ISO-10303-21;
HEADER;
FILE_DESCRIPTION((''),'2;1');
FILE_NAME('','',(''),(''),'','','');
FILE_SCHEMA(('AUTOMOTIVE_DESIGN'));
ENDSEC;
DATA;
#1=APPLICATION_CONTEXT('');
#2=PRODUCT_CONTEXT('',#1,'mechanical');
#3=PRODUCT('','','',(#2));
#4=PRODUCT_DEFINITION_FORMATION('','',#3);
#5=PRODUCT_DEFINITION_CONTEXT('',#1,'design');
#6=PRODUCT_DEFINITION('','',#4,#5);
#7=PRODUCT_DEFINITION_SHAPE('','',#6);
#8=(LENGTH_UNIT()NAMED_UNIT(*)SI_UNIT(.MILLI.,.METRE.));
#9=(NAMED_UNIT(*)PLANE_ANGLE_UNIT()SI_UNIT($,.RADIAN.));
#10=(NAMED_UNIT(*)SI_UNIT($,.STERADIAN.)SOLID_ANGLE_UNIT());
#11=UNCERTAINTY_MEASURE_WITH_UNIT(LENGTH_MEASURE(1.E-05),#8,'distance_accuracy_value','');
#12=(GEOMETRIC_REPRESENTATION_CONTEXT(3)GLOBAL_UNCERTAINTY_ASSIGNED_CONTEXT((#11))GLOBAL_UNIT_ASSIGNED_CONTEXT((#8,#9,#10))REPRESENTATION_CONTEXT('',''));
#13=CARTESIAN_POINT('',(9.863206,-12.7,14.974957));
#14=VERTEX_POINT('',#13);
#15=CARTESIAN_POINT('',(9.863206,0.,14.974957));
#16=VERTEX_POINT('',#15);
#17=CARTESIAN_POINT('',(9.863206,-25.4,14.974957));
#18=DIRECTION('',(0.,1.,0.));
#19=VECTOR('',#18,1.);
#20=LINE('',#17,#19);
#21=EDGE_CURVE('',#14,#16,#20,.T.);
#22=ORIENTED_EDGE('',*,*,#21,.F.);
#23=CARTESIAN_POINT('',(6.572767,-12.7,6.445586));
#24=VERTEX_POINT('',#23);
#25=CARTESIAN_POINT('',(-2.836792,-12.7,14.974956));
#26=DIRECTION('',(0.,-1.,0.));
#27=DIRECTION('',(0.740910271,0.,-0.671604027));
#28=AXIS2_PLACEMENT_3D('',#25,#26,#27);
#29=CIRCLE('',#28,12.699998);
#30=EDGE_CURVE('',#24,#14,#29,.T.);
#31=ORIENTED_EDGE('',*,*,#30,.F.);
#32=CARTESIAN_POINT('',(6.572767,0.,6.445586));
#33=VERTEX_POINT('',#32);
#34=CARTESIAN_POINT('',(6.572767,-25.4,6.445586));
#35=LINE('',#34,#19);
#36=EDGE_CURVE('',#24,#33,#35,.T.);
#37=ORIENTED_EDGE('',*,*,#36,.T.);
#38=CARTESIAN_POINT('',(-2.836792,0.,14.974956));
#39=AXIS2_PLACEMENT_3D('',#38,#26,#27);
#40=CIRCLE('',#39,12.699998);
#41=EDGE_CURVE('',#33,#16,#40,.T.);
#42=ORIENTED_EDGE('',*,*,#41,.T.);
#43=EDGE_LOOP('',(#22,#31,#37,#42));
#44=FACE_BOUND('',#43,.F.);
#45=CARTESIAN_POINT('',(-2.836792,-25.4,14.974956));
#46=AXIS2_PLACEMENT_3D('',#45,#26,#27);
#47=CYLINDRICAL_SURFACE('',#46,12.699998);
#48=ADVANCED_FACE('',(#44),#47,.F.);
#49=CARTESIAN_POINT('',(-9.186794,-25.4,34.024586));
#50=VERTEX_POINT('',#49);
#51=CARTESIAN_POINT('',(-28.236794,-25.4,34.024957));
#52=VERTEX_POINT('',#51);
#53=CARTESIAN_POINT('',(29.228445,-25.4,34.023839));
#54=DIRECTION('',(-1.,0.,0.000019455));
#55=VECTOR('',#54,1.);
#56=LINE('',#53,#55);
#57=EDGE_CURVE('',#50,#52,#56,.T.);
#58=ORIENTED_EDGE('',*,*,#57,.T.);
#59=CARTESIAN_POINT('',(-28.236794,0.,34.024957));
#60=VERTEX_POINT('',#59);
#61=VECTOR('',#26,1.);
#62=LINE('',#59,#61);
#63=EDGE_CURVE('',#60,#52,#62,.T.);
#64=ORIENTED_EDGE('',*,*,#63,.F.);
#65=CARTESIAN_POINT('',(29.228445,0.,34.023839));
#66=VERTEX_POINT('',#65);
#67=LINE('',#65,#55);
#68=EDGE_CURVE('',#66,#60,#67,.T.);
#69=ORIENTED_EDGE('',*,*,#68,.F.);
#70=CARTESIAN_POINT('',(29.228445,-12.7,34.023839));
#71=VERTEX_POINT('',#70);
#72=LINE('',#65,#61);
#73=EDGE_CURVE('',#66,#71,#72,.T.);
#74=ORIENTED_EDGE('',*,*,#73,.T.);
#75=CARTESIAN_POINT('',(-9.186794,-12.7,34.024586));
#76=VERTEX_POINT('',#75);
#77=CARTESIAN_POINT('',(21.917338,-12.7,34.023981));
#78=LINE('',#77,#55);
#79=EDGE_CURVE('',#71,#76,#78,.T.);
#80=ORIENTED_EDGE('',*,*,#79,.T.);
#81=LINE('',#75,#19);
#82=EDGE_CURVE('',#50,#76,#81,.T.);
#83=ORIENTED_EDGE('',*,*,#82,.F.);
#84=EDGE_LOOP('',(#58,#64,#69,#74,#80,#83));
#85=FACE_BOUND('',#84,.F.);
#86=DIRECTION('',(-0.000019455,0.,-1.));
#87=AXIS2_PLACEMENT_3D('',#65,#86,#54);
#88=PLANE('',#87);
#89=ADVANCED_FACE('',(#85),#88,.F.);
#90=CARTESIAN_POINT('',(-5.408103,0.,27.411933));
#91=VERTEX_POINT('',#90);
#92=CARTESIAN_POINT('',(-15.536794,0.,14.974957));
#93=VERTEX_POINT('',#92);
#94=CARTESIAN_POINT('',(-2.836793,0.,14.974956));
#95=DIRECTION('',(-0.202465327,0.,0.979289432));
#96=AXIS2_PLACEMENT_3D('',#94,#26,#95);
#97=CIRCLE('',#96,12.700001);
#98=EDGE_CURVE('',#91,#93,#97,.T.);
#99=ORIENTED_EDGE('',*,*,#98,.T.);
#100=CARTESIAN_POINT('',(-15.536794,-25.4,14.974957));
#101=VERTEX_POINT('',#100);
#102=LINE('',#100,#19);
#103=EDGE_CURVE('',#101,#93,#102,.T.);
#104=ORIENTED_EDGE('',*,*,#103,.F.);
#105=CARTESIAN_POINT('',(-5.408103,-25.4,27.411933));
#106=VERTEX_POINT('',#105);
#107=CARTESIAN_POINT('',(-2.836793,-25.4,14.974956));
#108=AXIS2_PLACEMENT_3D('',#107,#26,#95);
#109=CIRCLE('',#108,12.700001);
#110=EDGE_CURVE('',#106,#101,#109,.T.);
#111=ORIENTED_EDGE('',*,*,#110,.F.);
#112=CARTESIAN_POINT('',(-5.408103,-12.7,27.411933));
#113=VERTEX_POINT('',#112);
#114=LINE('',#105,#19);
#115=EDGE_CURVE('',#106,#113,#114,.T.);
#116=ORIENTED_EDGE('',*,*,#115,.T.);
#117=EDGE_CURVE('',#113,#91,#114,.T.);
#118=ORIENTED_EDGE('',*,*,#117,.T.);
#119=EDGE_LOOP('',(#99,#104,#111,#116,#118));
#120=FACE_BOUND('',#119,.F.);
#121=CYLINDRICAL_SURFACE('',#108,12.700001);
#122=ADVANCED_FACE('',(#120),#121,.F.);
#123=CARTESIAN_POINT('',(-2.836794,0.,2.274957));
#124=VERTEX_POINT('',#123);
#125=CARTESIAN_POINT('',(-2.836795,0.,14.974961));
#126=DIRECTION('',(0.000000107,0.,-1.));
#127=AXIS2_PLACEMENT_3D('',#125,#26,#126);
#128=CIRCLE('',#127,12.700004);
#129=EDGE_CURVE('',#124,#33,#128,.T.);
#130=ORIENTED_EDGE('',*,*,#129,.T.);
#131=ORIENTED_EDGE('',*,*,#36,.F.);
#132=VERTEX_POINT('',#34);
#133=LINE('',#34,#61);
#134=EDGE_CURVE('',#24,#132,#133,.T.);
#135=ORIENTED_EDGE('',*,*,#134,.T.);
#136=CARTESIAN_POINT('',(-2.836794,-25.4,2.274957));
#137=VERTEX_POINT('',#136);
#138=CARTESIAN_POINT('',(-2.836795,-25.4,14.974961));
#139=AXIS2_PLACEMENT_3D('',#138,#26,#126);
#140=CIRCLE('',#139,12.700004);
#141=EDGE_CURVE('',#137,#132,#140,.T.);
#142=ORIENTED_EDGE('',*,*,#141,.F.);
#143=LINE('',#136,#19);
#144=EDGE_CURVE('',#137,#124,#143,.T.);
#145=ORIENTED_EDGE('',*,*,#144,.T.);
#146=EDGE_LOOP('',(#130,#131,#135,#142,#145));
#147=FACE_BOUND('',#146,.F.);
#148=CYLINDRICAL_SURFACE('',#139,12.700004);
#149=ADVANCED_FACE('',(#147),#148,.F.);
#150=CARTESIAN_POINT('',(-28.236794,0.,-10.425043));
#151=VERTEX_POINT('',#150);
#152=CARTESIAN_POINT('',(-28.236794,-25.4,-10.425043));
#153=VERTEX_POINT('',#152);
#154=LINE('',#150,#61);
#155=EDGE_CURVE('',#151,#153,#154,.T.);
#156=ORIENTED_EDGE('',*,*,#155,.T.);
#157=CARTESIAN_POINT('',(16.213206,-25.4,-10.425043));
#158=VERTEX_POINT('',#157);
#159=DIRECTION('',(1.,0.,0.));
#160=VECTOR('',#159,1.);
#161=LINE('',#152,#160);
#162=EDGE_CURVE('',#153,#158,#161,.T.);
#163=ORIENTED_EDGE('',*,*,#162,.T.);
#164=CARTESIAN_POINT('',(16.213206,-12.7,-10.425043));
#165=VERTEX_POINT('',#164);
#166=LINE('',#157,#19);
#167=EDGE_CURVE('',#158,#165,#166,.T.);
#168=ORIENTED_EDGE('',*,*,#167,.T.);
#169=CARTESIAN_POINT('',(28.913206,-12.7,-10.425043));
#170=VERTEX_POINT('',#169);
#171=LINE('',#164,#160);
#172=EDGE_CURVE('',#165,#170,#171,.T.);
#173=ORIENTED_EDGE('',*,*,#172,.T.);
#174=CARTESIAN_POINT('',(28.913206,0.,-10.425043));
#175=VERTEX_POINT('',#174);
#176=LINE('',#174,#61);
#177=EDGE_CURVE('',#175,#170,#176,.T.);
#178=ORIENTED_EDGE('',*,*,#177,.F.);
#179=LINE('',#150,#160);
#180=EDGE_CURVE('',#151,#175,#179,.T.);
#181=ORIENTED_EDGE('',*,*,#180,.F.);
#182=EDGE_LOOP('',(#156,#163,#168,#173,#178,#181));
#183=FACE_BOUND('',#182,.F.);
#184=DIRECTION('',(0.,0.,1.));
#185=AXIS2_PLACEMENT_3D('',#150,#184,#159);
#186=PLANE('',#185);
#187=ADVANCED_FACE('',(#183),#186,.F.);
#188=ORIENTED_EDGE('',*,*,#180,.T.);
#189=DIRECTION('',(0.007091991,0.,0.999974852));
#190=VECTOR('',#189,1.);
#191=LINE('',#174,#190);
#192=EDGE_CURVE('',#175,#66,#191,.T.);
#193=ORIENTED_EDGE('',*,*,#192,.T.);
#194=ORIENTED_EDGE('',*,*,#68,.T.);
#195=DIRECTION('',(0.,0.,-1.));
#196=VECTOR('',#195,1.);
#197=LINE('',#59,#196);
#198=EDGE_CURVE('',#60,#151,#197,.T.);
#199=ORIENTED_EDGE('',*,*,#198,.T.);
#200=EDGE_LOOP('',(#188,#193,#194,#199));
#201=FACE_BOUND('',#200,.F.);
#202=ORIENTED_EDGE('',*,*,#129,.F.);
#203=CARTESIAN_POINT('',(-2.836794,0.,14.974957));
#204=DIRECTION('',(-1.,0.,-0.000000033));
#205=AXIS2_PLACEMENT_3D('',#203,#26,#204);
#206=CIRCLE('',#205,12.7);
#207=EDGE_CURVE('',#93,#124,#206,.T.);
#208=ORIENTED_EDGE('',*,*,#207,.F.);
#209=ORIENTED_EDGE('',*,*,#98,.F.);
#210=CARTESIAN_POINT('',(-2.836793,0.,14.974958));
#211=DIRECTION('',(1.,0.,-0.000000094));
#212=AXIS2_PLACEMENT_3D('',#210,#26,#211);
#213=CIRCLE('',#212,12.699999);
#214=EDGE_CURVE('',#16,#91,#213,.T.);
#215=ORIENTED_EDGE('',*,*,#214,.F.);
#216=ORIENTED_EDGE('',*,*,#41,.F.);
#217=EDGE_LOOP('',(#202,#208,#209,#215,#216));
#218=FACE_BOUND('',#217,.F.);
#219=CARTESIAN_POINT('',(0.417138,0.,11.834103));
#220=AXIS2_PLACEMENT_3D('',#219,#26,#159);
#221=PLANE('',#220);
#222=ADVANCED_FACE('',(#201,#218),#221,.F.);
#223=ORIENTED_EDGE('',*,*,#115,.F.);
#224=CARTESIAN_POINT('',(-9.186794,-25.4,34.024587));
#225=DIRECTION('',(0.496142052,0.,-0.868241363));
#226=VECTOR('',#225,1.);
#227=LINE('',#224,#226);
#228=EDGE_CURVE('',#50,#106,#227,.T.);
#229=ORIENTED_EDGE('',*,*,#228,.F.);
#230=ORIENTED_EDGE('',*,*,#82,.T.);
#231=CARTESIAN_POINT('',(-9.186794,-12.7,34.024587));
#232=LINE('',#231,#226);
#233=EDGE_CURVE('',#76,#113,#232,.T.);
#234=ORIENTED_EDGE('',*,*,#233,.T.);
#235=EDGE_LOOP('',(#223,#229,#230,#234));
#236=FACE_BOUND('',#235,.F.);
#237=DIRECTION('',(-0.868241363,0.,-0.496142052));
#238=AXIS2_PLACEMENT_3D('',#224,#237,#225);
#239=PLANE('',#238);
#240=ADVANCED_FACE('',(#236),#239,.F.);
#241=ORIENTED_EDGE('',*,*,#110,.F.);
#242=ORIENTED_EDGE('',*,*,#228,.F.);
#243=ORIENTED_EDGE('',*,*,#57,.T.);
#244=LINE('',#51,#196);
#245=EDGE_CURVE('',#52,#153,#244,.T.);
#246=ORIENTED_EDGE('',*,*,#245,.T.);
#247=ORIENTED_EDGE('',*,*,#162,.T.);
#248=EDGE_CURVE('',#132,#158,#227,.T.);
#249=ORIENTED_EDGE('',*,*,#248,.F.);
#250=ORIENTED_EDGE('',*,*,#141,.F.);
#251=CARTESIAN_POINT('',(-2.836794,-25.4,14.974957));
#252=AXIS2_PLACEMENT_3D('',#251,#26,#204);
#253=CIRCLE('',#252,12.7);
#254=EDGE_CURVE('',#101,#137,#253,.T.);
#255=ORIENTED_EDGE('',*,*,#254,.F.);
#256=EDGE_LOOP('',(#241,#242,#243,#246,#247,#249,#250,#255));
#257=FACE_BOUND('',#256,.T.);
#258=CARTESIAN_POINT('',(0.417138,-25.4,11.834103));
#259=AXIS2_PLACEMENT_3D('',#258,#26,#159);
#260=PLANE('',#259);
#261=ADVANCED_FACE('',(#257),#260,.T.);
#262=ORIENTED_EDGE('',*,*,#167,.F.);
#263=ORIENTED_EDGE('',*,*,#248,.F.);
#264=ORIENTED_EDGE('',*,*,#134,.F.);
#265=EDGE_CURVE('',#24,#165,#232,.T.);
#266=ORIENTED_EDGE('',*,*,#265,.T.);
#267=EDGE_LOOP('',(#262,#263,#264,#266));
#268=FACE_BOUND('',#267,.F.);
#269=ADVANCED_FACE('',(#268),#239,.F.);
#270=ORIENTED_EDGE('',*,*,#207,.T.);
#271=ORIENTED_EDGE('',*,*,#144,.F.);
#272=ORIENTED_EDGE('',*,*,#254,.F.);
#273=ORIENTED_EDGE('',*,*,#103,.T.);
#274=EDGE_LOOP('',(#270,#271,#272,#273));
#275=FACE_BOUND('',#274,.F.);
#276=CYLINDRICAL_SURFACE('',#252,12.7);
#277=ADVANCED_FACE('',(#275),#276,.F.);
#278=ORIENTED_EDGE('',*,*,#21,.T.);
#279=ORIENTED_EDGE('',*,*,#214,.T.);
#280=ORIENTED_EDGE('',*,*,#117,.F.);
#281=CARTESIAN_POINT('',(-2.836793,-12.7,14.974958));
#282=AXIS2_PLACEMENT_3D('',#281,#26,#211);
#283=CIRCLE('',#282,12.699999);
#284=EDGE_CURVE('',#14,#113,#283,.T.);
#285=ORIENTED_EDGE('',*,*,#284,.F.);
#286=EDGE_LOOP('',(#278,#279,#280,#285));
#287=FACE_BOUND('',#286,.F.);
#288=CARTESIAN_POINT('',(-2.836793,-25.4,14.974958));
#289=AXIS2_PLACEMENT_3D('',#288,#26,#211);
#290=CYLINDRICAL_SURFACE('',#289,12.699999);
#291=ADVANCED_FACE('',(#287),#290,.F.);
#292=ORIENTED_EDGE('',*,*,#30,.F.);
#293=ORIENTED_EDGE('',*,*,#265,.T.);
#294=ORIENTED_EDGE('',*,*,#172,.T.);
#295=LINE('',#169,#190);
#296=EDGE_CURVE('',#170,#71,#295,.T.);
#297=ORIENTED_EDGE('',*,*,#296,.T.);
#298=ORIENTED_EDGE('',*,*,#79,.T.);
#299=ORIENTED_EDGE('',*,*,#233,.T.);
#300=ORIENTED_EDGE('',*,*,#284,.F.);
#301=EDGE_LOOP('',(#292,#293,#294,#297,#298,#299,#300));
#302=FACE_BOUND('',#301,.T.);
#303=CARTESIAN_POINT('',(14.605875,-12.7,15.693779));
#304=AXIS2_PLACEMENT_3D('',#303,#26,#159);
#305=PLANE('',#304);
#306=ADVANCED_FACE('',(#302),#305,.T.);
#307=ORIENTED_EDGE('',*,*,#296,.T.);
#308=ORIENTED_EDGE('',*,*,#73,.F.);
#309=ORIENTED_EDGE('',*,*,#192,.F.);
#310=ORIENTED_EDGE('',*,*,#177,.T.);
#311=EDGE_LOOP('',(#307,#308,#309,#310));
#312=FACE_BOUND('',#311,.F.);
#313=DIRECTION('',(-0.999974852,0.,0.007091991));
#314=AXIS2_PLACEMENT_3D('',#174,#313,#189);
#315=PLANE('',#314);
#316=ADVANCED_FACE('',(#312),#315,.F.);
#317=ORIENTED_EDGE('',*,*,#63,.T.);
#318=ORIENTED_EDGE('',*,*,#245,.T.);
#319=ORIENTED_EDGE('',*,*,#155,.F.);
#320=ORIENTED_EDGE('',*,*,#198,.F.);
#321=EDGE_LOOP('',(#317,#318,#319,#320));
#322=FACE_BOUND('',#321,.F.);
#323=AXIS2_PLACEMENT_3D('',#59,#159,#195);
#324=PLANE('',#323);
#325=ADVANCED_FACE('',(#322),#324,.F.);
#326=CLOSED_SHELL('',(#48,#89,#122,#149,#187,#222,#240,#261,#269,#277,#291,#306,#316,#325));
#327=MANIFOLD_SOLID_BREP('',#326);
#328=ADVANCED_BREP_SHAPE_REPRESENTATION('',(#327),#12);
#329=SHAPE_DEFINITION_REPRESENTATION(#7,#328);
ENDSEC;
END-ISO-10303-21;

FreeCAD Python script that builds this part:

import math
import FreeCAD as App
import Part
import Sketcher
Q = App.Units.Quantity


def add_polygon(sketch, points):
    """Adds a closed chain of lines whose ends are joined by coincident constraints."""
    first, n = sketch.GeometryCount, len(points)
    for a, b in zip(points, points[1:] + points[:1]):
        sketch.addGeometry(Part.LineSegment(App.Vector(*a, 0), App.Vector(*b, 0)), False)
    for i in range(n):
        sketch.addConstraint(Sketcher.Constraint("Coincident", first + i, 2, first + (i + 1) % n, 1))

doc = App.newDocument("Part")
params = doc.addObject("Spreadsheet::Sheet", "Params")
for row, (alias, value) in enumerate([
    ("sketch1_width", "2.25 in"),
    ("sketch1_height", "1.75 in"),
    ("sketch1_length", "1.75 in"),
    ("pad1_length", "1 in"),
    ("sketch2_width", "0.5 in"),
    ("sketch2_length", "1.75 in"),
    ("pocket1_length", "0.5 in"),
    ("sketch3_radius", "0.5 in"),
], start=1):
    params.set(f"A{row}", alias)
    params.set(f"B{row}", "=" + value)
    params.setAlias(f"B{row}", alias)

body = doc.addObject("PartDesign::Body", "Body")

# Sketch on XZ plane
sketch1 = body.newObject("Sketcher::SketchObject", "Sketch")
sketch1.AttachmentSupport = (doc.getObject("XZ_Plane"), [""])
sketch1.MapMode = "FlatFace"
add_polygon(sketch1, [(29, 34), (-28, 34), (-28, -10), (29, -10)])  # lines 0-3
sketch1.addConstraint(Sketcher.Constraint("Vertical", 1))
sketch1.addConstraint(Sketcher.Constraint("Horizontal", 2))
sketch1.addConstraint(Sketcher.Constraint("DistanceX", 2, 1, 2, 2, Q("2.25 in")))
sketch1.addConstraint(Sketcher.Constraint("DistanceY", 1, 2, 1, 1, Q("1.75 in")))
sketch1.addConstraint(Sketcher.Constraint("Distance", 3, Q("1.75 in")))
sketch1.addConstraint(Sketcher.Constraint("Distance", 0, 57.465239))
sketch1.addConstraint(Sketcher.Constraint("DistanceY", -1, 1, 3, 2, 34.023839))
sketch1.addConstraint(Sketcher.Constraint("DistanceX", 0, 2, -1, 1, 28.236794))
sketch1.setExpression("Constraints[6]", "Params.sketch1_width")
sketch1.setExpression("Constraints[7]", "Params.sketch1_height")
sketch1.setExpression("Constraints[8]", "Params.sketch1_length")
pad1 = body.newObject("PartDesign::Pad", "Pad")
pad1.Profile = sketch1
pad1.setExpression("Length", "Params.pad1_length")

# Sketch on XZ plane
sketch2 = body.newObject("Sketcher::SketchObject", "Sketch001")
sketch2.AttachmentSupport = (doc.getObject("XZ_Plane"), [""])
sketch2.MapMode = "FlatFace"
sketch2.AttachmentOffset = App.Placement(App.Vector(0, 0, 1 * 25.4), App.Rotation())
add_polygon(sketch2, [(29, 34), (-9, 34), (16, -10), (29, -10)])  # lines 0-3
sketch2.addConstraint(Sketcher.Constraint("Horizontal", 2))
sketch2.addConstraint(Sketcher.Constraint("DistanceX", 2, 1, 2, 2, Q("0.5 in")))
sketch2.addConstraint(Sketcher.Constraint("DistanceX", 0, 2, 1, 2, Q("1 in")))
sketch2.addConstraint(Sketcher.Constraint("Distance", 3, Q("1.75 in")))
sketch2.addConstraint(Sketcher.Constraint("Distance", 0, 38.415239))
sketch2.addConstraint(Sketcher.Constraint("DistanceY", -1, 1, 3, 2, 34.023839))
sketch2.addConstraint(Sketcher.Constraint("DistanceY", 1, 2, 0, 2, 44.44963))
sketch2.addConstraint(Sketcher.Constraint("DistanceX", 0, 2, -1, 1, 9.186794))
sketch2.setExpression("Constraints[5]", "Params.sketch2_width")
sketch2.setExpression("Constraints[7]", "Params.sketch2_length")
pocket1 = body.newObject("PartDesign::Pocket", "Pocket")
pocket1.Profile = sketch2
pocket1.setExpression("Length", "Params.pocket1_length")

# Sketch on XZ plane
sketch3 = body.newObject("Sketcher::SketchObject", "Sketch002")
sketch3.AttachmentSupport = (doc.getObject("XZ_Plane"), [""])
sketch3.MapMode = "FlatFace"
sketch3.AttachmentOffset = App.Placement(App.Vector(0, 0, 1 * 25.4), App.Rotation())
sketch3.addGeometry(Part.ArcOfCircle(Part.Circle(App.Vector(-3, 15, 0), App.Vector(0, 0, 1), 13), math.radians(-180), math.radians(-90)), False)
sketch3.addGeometry(Part.ArcOfCircle(Part.Circle(App.Vector(-3, 15, 0), App.Vector(0, 0, 1), 13), math.radians(-90), math.radians(-42)), False)
sketch3.addGeometry(Part.ArcOfCircle(Part.Circle(App.Vector(-3, 15, 0), App.Vector(0, 0, 1), 13), math.radians(-42), math.radians(0)), False)
sketch3.addGeometry(Part.ArcOfCircle(Part.Circle(App.Vector(-3, 15, 0), App.Vector(0, 0, 1), 13), math.radians(0), math.radians(102)), False)
sketch3.addGeometry(Part.ArcOfCircle(Part.Circle(App.Vector(-3, 15, 0), App.Vector(0, 0, 1), 13), math.radians(102), math.radians(180)), False)
sketch3.addConstraint(Sketcher.Constraint("Tangent", 0, 2, 1, 1))
sketch3.addConstraint(Sketcher.Constraint("Tangent", 1, 2, 2, 1))
sketch3.addConstraint(Sketcher.Constraint("Tangent", 2, 2, 3, 1))
sketch3.addConstraint(Sketcher.Constraint("Tangent", 3, 2, 4, 1))
sketch3.addConstraint(Sketcher.Constraint("Tangent", 4, 2, 0, 1))
sketch3.addConstraint(Sketcher.Constraint("Coincident", 2, 3, 0, 3))
sketch3.addConstraint(Sketcher.Constraint("Horizontal", 4, 3, 2, 2))
sketch3.addConstraint(Sketcher.Constraint("Horizontal", 2, 2, 4, 2))
sketch3.addConstraint(Sketcher.Constraint("Vertical", 4, 3, 0, 2))
sketch3.addConstraint(Sketcher.Constraint("Radius", 0, Q("0.5 in")))
sketch3.addConstraint(Sketcher.Constraint("DistanceY", -1, 1, 1, 3, 14.974961))
sketch3.addConstraint(Sketcher.Constraint("DistanceX", 2, 3, -1, 1, 2.836792))
sketch3.addConstraint(Sketcher.Constraint("DistanceX", 0, 2, 1, 2, 9.409561))
sketch3.addConstraint(Sketcher.Constraint("DistanceY", 1, 3, 3, 2, 12.436972))
sketch3.setExpression("Constraints[9]", "Params.sketch3_radius")
pocket2 = body.newObject("PartDesign::Pocket", "Pocket001")
pocket2.Profile = sketch3
pocket2.Type = "ThroughAll"

doc.recompute()
